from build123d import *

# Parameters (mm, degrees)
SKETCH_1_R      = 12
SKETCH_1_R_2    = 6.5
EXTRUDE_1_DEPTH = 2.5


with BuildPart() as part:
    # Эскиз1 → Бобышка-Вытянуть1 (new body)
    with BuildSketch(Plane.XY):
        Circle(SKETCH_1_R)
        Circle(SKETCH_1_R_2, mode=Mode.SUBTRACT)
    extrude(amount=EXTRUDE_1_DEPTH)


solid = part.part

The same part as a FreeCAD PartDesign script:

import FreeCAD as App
import Part
import Sketcher
from FreeCAD import Vector

doc = App.newDocument("Part")
body = doc.addObject("PartDesign::Body", "Body")

# Sketch on XY plane
sketch1 = body.newObject("Sketcher::SketchObject", "Sketch")
sketch1.AttachmentSupport = (doc.getObject("XY_Plane"), [""])
sketch1.MapMode = "FlatFace"
sketch1.addGeometry([
    Part.Circle(Vector(0, 0, 0), Vector(0, 0, 1), 12),
    Part.Circle(Vector(0, 0, 0), Vector(0, 0, 1), 6),
], False)
sketch1.addConstraint([
    Sketcher.Constraint("Coincident", 0, 3, -1, 1),
    Sketcher.Constraint("Coincident", 1, 3, -1, 1),
    Sketcher.Constraint("Diameter", 0, 24.0),
    Sketcher.Constraint("Diameter", 1, 13.0),
])
pad1 = body.newObject("PartDesign::Pad", "Pad")
pad1.Profile = sketch1
pad1.Length = 2.5

doc.recompute()
